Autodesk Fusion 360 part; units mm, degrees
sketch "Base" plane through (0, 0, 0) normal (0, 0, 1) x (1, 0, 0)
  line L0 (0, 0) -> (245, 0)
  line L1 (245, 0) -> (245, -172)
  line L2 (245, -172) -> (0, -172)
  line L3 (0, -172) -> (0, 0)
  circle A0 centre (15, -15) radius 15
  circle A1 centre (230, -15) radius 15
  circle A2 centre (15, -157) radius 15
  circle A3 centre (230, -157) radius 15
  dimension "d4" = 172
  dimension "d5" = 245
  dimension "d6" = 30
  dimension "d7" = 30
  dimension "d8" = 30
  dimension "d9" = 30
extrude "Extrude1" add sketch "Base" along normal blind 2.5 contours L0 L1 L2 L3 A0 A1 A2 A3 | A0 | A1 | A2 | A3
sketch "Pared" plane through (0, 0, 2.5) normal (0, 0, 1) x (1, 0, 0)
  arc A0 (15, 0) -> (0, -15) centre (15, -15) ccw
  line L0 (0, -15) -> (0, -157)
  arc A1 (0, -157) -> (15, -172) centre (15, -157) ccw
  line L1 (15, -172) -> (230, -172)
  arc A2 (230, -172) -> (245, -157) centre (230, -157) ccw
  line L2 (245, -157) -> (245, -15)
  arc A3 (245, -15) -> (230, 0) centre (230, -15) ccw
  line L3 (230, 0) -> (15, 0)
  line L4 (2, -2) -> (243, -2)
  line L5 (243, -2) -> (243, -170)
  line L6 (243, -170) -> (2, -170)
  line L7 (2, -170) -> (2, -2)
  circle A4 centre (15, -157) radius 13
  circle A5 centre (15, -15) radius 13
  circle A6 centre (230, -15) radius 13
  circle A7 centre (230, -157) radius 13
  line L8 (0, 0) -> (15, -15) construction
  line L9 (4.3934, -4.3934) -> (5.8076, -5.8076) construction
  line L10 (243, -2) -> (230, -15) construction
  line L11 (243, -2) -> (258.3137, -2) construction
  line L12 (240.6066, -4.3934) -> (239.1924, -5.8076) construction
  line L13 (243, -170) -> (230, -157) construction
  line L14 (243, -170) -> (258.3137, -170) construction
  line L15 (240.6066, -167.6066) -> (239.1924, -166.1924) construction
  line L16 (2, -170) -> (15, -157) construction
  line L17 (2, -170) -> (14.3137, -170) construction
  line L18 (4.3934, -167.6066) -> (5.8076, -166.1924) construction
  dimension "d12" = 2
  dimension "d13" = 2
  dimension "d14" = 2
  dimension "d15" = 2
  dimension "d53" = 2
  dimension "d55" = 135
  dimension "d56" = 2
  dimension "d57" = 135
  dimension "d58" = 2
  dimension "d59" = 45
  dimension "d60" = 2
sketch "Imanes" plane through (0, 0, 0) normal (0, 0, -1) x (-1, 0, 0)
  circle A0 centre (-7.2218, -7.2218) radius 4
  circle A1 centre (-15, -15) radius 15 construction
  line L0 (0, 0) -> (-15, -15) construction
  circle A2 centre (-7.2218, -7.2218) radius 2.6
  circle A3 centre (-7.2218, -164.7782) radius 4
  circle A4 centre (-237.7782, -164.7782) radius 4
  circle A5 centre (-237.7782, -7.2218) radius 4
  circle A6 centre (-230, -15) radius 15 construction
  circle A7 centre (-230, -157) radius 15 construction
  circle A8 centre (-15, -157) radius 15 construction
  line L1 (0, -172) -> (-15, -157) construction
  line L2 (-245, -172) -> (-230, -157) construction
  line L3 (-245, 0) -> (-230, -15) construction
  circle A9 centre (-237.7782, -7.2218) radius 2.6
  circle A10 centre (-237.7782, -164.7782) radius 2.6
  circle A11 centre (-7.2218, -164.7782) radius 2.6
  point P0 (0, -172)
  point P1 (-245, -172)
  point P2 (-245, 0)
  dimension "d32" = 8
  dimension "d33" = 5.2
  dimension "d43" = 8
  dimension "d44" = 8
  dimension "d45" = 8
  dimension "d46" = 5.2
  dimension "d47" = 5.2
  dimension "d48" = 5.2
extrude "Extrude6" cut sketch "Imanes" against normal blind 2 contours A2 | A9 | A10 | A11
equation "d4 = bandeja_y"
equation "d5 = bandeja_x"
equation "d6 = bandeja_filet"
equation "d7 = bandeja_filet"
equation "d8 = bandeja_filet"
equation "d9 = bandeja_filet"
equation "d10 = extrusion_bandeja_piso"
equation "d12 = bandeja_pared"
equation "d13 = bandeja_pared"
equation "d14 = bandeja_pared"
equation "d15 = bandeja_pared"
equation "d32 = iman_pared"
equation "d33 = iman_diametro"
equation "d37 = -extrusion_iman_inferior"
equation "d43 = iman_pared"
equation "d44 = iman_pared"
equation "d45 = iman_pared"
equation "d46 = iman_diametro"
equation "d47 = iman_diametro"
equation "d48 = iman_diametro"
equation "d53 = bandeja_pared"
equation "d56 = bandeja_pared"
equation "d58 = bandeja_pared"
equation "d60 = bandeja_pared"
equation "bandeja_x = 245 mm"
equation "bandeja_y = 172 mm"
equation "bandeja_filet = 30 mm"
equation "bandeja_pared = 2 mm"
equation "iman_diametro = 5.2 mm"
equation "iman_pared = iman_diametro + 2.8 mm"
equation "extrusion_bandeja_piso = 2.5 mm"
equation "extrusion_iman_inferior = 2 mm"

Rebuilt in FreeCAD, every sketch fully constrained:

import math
import FreeCAD as App
import Part
import Sketcher

V = App.Vector

doc = App.newDocument("Part")
body = doc.addObject("PartDesign::Body", "Body")

# Sketch on XY plane
sketch1 = body.newObject("Sketcher::SketchObject", "Sketch")
sketch1.AttachmentSupport = (doc.getObject("XY_Plane"), [""])
sketch1.MapMode = "FlatFace"
sketch1.addGeometry([
    Part.LineSegment(V(230, 0, 0), V(15, 0, 0)),  # 0
    Part.ArcOfCircle(Part.Circle(V(15, -15, 0), V(0, 0, 1), 15), math.radians(90), math.radians(180)),  # 1
    Part.LineSegment(V(0, -15, 0), V(0, -157, 0)),  # 2
    Part.ArcOfCircle(Part.Circle(V(15, -157, 0), V(0, 0, 1), 15), math.radians(180), math.radians(270)),  # 3
    Part.LineSegment(V(15, -172, 0), V(230, -172, 0)),  # 4
    Part.ArcOfCircle(Part.Circle(V(230, -157, 0), V(0, 0, 1), 15), math.radians(-90), math.radians(0)),  # 5
    Part.LineSegment(V(245, -157, 0), V(245, -15, 0)),  # 6
    Part.ArcOfCircle(Part.Circle(V(230, -15, 0), V(0, 0, 1), 15), math.radians(0), math.radians(90)),  # 7
], False)
sketch1.addConstraint([
    Sketcher.Constraint("Tangent", 0, 2, 1, 1),
    Sketcher.Constraint("Tangent", 1, 2, 2, 1),
    Sketcher.Constraint("Tangent", 2, 2, 3, 1),
    Sketcher.Constraint("Tangent", 3, 2, 4, 1),
    Sketcher.Constraint("Tangent", 4, 2, 5, 1),
    Sketcher.Constraint("Tangent", 5, 2, 6, 1),
    Sketcher.Constraint("Tangent", 6, 2, 7, 1),
    Sketcher.Constraint("Tangent", 7, 2, 0, 1),
    Sketcher.Constraint("Horizontal", 0),
    Sketcher.Constraint("Vertical", 2),
    Sketcher.Constraint("Horizontal", 4),
    Sketcher.Constraint("Vertical", 6),
    Sketcher.Constraint("Equal", 1, 3),
    Sketcher.Constraint("Equal", 3, 5),
    Sketcher.Constraint("Equal", 5, 7),
    Sketcher.Constraint("PointOnObject", 0, 2, -1),
    Sketcher.Constraint("PointOnObject", 1, 2, -2),
    Sketcher.Constraint("Radius", 1, 15.0),
    Sketcher.Constraint("DistanceY", 3, 2, -1, 1, 172.0),
    Sketcher.Constraint("DistanceX", -1, 1, 5, 2, 245.0),
])
pad1 = body.newObject("PartDesign::Pad", "Pad")
pad1.Profile = sketch1
pad1.Length = 2.5

# Sketch on XY plane
sketch2 = body.newObject("Sketcher::SketchObject", "Sketch001")
sketch2.AttachmentSupport = (doc.getObject("XY_Plane"), [""])
sketch2.MapMode = "FlatFace"
sketch2.addGeometry([
    Part.Circle(V(7.2, -7.2, 0), V(0, 0, 1), 2.6),
    Part.Circle(V(237.8, -7.2, 0), V(0, 0, 1), 2.6),
    Part.Circle(V(237.8, -164.8, 0), V(0, 0, 1), 2.6),
    Part.Circle(V(7.2, -164.8, 0), V(0, 0, 1), 2.6),
], False)
sketch2.addConstraint([
    Sketcher.Constraint("Equal", 0, 1),
    Sketcher.Constraint("Equal", 1, 2),
    Sketcher.Constraint("Equal", 2, 3),
    Sketcher.Constraint("Horizontal", 0, 3, 1, 3),
    Sketcher.Constraint("Horizontal", 2, 3, 3, 3),
    Sketcher.Constraint("Vertical", 1, 3, 2, 3),
    Sketcher.Constraint("Vertical", 0, 3, 3, 3),
    Sketcher.Constraint("Diameter", 0, 5.2),
    Sketcher.Constraint("DistanceX", -1, 1, 0, 3, 7.2218),
    Sketcher.Constraint("DistanceY", 0, 3, -1, 1, 7.2218),
    Sketcher.Constraint("DistanceX", -1, 1, 1, 3, 237.7782),
    Sketcher.Constraint("DistanceY", 2, 3, -1, 1, 164.7782),
])
pocket1 = body.newObject("PartDesign::Pocket", "Pocket")
pocket1.Profile = sketch2
pocket1.Length = 2
pocket1.Reversed = True

doc.recompute()
